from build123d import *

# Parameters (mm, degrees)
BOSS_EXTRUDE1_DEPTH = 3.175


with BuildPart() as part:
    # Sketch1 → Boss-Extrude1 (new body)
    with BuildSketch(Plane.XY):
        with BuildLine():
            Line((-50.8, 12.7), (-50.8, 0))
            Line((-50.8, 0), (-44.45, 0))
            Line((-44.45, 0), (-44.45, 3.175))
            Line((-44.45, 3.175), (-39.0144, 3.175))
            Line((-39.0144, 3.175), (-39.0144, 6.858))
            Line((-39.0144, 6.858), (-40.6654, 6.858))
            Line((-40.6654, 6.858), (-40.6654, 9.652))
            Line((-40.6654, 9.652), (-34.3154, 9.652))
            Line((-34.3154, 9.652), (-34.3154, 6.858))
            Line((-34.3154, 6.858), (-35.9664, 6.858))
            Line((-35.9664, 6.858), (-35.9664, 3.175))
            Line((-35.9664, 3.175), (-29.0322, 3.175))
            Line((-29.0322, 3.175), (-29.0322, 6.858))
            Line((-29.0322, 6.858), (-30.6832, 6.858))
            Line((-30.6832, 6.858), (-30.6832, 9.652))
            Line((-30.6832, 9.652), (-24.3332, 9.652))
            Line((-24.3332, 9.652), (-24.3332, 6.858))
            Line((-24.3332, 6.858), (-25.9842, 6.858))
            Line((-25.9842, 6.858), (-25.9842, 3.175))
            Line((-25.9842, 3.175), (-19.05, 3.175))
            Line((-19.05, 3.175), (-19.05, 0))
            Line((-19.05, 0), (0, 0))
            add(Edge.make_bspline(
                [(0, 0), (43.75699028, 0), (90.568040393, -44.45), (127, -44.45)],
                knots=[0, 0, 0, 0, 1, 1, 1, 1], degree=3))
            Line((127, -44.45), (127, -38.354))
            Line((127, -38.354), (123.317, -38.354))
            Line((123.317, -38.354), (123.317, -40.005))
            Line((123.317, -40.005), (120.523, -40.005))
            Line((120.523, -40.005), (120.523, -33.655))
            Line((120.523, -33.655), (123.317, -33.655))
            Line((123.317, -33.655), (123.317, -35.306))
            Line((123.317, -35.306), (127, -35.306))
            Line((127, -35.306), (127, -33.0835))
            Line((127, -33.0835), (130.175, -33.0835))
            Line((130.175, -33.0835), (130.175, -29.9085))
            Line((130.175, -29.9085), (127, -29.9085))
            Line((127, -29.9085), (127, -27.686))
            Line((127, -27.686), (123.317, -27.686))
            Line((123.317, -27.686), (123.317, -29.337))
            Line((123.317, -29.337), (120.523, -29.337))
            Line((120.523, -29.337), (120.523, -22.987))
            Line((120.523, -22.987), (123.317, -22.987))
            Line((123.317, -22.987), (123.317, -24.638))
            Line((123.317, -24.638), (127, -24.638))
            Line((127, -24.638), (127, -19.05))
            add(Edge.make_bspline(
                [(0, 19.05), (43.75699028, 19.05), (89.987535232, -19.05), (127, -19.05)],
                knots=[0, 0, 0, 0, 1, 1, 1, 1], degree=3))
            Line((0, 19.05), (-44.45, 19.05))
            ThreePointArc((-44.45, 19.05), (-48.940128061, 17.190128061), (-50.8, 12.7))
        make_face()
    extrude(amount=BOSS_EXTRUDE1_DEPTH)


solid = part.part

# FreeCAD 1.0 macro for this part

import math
import FreeCAD as App
import Part
import Sketcher
Q = App.Units.Quantity

doc = App.newDocument("Part")
body = doc.addObject("PartDesign::Body", "Body")

# Sketch on XY plane
sketch1 = body.newObject("Sketcher::SketchObject", "Sketch")
sketch1.AttachmentSupport = (doc.getObject("XY_Plane"), [""])
sketch1.MapMode = "FlatFace"
sketch1.addGeometry(Part.LineSegment(App.Vector(-50.8, 12.7, 0), App.Vector(-50.8, 0, 0)), False)
sketch1.addGeometry(Part.LineSegment(App.Vector(-50.8, 0, 0), App.Vector(-44.45, 0, 0)), False)
sketch1.addGeometry(Part.LineSegment(App.Vector(-44.45, 0, 0), App.Vector(-44.45, 3.175, 0)), False)
sketch1.addGeometry(Part.LineSegment(App.Vector(-44.45, 3.175, 0), App.Vector(-39.0144, 3.175, 0)), False)
sketch1.addGeometry(Part.LineSegment(App.Vector(-39.0144, 3.175, 0), App.Vector(-39.0144, 6.858, 0)), False)
sketch1.addGeometry(Part.LineSegment(App.Vector(-39.0144, 6.858, 0), App.Vector(-40.6654, 6.858, 0)), False)
sketch1.addGeometry(Part.LineSegment(App.Vector(-40.6654, 6.858, 0), App.Vector(-40.6654, 9.652, 0)), False)
sketch1.addGeometry(Part.LineSegment(App.Vector(-40.6654, 9.652, 0), App.Vector(-34.3154, 9.652, 0)), False)
sketch1.addGeometry(Part.LineSegment(App.Vector(-34.3154, 9.652, 0), App.Vector(-34.3154, 6.858, 0)), False)
sketch1.addGeometry(Part.LineSegment(App.Vector(-34.3154, 6.858, 0), App.Vector(-35.9664, 6.858, 0)), False)
sketch1.addGeometry(Part.LineSegment(App.Vector(-35.9664, 6.858, 0), App.Vector(-35.9664, 3.175, 0)), False)
sketch1.addGeometry(Part.LineSegment(App.Vector(-35.9664, 3.175, 0), App.Vector(-29.0322, 3.175, 0)), False)
sketch1.addGeometry(Part.LineSegment(App.Vector(-29.0322, 3.175, 0), App.Vector(-29.0322, 6.858, 0)), False)
sketch1.addGeometry(Part.LineSegment(App.Vector(-29.0322, 6.858, 0), App.Vector(-30.6832, 6.858, 0)), False)
sketch1.addGeometry(Part.LineSegment(App.Vector(-30.6832, 6.858, 0), App.Vector(-30.6832, 9.652, 0)), False)
sketch1.addGeometry(Part.LineSegment(App.Vector(-30.6832, 9.652, 0), App.Vector(-24.3332, 9.652, 0)), False)
sketch1.addGeometry(Part.LineSegment(App.Vector(-24.3332, 9.652, 0), App.Vector(-24.3332, 6.858, 0)), False)
sketch1.addGeometry(Part.LineSegment(App.Vector(-24.3332, 6.858, 0), App.Vector(-25.9842, 6.858, 0)), False)
sketch1.addGeometry(Part.LineSegment(App.Vector(-25.9842, 6.858, 0), App.Vector(-25.9842, 3.175, 0)), False)
sketch1.addGeometry(Part.LineSegment(App.Vector(-25.9842, 3.175, 0), App.Vector(-19.05, 3.175, 0)), False)
sketch1.addGeometry(Part.LineSegment(App.Vector(-19.05, 3.175, 0), App.Vector(-19.05, 0, 0)), False)
sketch1.addGeometry(Part.LineSegment(App.Vector(-19.05, 0, 0), App.Vector(0, 0, 0)), False)
sketch1.addGeometry(Part.BSplineCurve([App.Vector(0, 0, 0), App.Vector(43.75699, 0, 0), App.Vector(90.56804, -44.45, 0), App.Vector(127, -44.45, 0)], [4, 4], [0, 1], False, 3, [1, 1, 1, 1], False), False)
sketch1.addGeometry(Part.LineSegment(App.Vector(127, -44.45, 0), App.Vector(127, -38.354, 0)), False)
sketch1.addGeometry(Part.LineSegment(App.Vector(127, -38.354, 0), App.Vector(123.317, -38.354, 0)), False)
sketch1.addGeometry(Part.LineSegment(App.Vector(123.317, -38.354, 0), App.Vector(123.317, -40.005, 0)), False)
sketch1.addGeometry(Part.LineSegment(App.Vector(123.317, -40.005, 0), App.Vector(120.523, -40.005, 0)), False)
sketch1.addGeometry(Part.LineSegment(App.Vector(120.523, -40.005, 0), App.Vector(120.523, -33.655, 0)), False)
sketch1.addGeometry(Part.LineSegment(App.Vector(120.523, -33.655, 0), App.Vector(123.317, -33.655, 0)), False)
sketch1.addGeometry(Part.LineSegment(App.Vector(123.317, -33.655, 0), App.Vector(123.317, -35.306, 0)), False)
sketch1.addGeometry(Part.LineSegment(App.Vector(123.317, -35.306, 0), App.Vector(127, -35.306, 0)), False)
sketch1.addGeometry(Part.LineSegment(App.Vector(127, -35.306, 0), App.Vector(127, -33.0835, 0)), False)
sketch1.addGeometry(Part.LineSegment(App.Vector(127, -33.0835, 0), App.Vector(130.175, -33.0835, 0)), False)
sketch1.addGeometry(Part.LineSegment(App.Vector(130.175, -33.0835, 0), App.Vector(130.175, -29.9085, 0)), False)
sketch1.addGeometry(Part.LineSegment(App.Vector(130.175, -29.9085, 0), App.Vector(127, -29.9085, 0)), False)
sketch1.addGeometry(Part.LineSegment(App.Vector(127, -29.9085, 0), App.Vector(127, -27.686, 0)), False)
sketch1.addGeometry(Part.LineSegment(App.Vector(127, -27.686, 0), App.Vector(123.317, -27.686, 0)), False)
sketch1.addGeometry(Part.LineSegment(App.Vector(123.317, -27.686, 0), App.Vector(123.317, -29.337, 0)), False)
sketch1.addGeometry(Part.LineSegment(App.Vector(123.317, -29.337, 0), App.Vector(120.523, -29.337, 0)), False)
sketch1.addGeometry(Part.LineSegment(App.Vector(120.523, -29.337, 0), App.Vector(120.523, -22.987, 0)), False)
sketch1.addGeometry(Part.LineSegment(App.Vector(120.523, -22.987, 0), App.Vector(123.317, -22.987, 0)), False)
sketch1.addGeometry(Part.LineSegment(App.Vector(123.317, -22.987, 0), App.Vector(123.317, -24.638, 0)), False)
sketch1.addGeometry(Part.LineSegment(App.Vector(123.317, -24.638, 0), App.Vector(127, -24.638, 0)), False)
sketch1.addGeometry(Part.LineSegment(App.Vector(127, -24.638, 0), App.Vector(127, -19.05, 0)), False)
sketch1.addGeometry(Part.BSplineCurve([App.Vector(0, 19.05, 0), App.Vector(43.75699, 19.05, 0), App.Vector(89.987535, -19.05, 0), App.Vector(127, -19.05, 0)], [4, 4], [0, 1], False, 3, [1, 1, 1, 1], False), False)
sketch1.addGeometry(Part.LineSegment(App.Vector(0, 19.05, 0), App.Vector(-44.45, 19.05, 0)), False)
sketch1.addGeometry(Part.ArcOfCircle(Part.Circle(App.Vector(-44.45, 12.7, 0), App.Vector(0, 0, 1), 6.35), math.radians(90), math.radians(180)), False)
sketch1.addConstraint(Sketcher.Constraint("Block", 22))
sketch1.addConstraint(Sketcher.Constraint("Block", 44))
sketch1.addConstraint(Sketcher.Constraint("Coincident", 0, 2, 1, 1))
sketch1.addConstraint(Sketcher.Constraint("Coincident", 1, 2, 2, 1))
sketch1.addConstraint(Sketcher.Constraint("Coincident", 2, 2, 3, 1))
sketch1.addConstraint(Sketcher.Constraint("Coincident", 3, 2, 4, 1))
sketch1.addConstraint(Sketcher.Constraint("Coincident", 4, 2, 5, 1))
sketch1.addConstraint(Sketcher.Constraint("Coincident", 5, 2, 6, 1))
sketch1.addConstraint(Sketcher.Constraint("Coincident", 6, 2, 7, 1))
sketch1.addConstraint(Sketcher.Constraint("Coincident", 7, 2, 8, 1))
sketch1.addConstraint(Sketcher.Constraint("Coincident", 8, 2, 9, 1))
sketch1.addConstraint(Sketcher.Constraint("Coincident", 9, 2, 10, 1))
sketch1.addConstraint(Sketcher.Constraint("Coincident", 10, 2, 11, 1))
sketch1.addConstraint(Sketcher.Constraint("Coincident", 11, 2, 12, 1))
sketch1.addConstraint(Sketcher.Constraint("Coincident", 12, 2, 13, 1))
sketch1.addConstraint(Sketcher.Constraint("Coincident", 13, 2, 14, 1))
sketch1.addConstraint(Sketcher.Constraint("Coincident", 14, 2, 15, 1))
sketch1.addConstraint(Sketcher.Constraint("Coincident", 15, 2, 16, 1))
sketch1.addConstraint(Sketcher.Constraint("Coincident", 16, 2, 17, 1))
sketch1.addConstraint(Sketcher.Constraint("Coincident", 17, 2, 18, 1))
sketch1.addConstraint(Sketcher.Constraint("Coincident", 18, 2, 19, 1))
sketch1.addConstraint(Sketcher.Constraint("Coincident", 19, 2, 20, 1))
sketch1.addConstraint(Sketcher.Constraint("Coincident", 20, 2, 21, 1))
sketch1.addConstraint(Sketcher.Constraint("Coincident", 21, 2, 22, 1))
sketch1.addConstraint(Sketcher.Constraint("Coincident", 22, 2, 23, 1))
sketch1.addConstraint(Sketcher.Constraint("Coincident", 23, 2, 24, 1))
sketch1.addConstraint(Sketcher.Constraint("Coincident", 24, 2, 25, 1))
sketch1.addConstraint(Sketcher.Constraint("Coincident", 25, 2, 26, 1))
sketch1.addConstraint(Sketcher.Constraint("Coincident", 26, 2, 27, 1))
sketch1.addConstraint(Sketcher.Constraint("Coincident", 27, 2, 28, 1))
sketch1.addConstraint(Sketcher.Constraint("Coincident", 28, 2, 29, 1))
sketch1.addConstraint(Sketcher.Constraint("Coincident", 29, 2, 30, 1))
sketch1.addConstraint(Sketcher.Constraint("Coincident", 30, 2, 31, 1))
sketch1.addConstraint(Sketcher.Constraint("Coincident", 31, 2, 32, 1))
sketch1.addConstraint(Sketcher.Constraint("Coincident", 32, 2, 33, 1))
sketch1.addConstraint(Sketcher.Constraint("Coincident", 33, 2, 34, 1))
sketch1.addConstraint(Sketcher.Constraint("Coincident", 34, 2, 35, 1))
sketch1.addConstraint(Sketcher.Constraint("Coincident", 35, 2, 36, 1))
sketch1.addConstraint(Sketcher.Constraint("Coincident", 36, 2, 37, 1))
sketch1.addConstraint(Sketcher.Constraint("Coincident", 37, 2, 38, 1))
sketch1.addConstraint(Sketcher.Constraint("Coincident", 38, 2, 39, 1))
sketch1.addConstraint(Sketcher.Constraint("Coincident", 39, 2, 40, 1))
sketch1.addConstraint(Sketcher.Constraint("Coincident", 40, 2, 41, 1))
sketch1.addConstraint(Sketcher.Constraint("Coincident", 41, 2, 42, 1))
sketch1.addConstraint(Sketcher.Constraint("Coincident", 42, 2, 43, 1))
sketch1.addConstraint(Sketcher.Constraint("Coincident", 43, 2, 44, 2))
sketch1.addConstraint(Sketcher.Constraint("Coincident", 44, 1, 45, 1))
sketch1.addConstraint(Sketcher.Constraint("Coincident", 45, 2, 46, 1))
sketch1.addConstraint(Sketcher.Constraint("Coincident", 46, 2, 0, 1))
sketch1.addConstraint(Sketcher.Constraint("Vertical", 0))
sketch1.addConstraint(Sketcher.Constraint("Horizontal", 1))
sketch1.addConstraint(Sketcher.Constraint("Vertical", 2))
sketch1.addConstraint(Sketcher.Constraint("Horizontal", 3))
sketch1.addConstraint(Sketcher.Constraint("Vertical", 4))
sketch1.addConstraint(Sketcher.Constraint("Horizontal", 5))
sketch1.addConstraint(Sketcher.Constraint("Vertical", 6))
sketch1.addConstraint(Sketcher.Constraint("Horizontal", 7))
sketch1.addConstraint(Sketcher.Constraint("Vertical", 8))
sketch1.addConstraint(Sketcher.Constraint("Horizontal", 9))
sketch1.addConstraint(Sketcher.Constraint("Vertical", 10))
sketch1.addConstraint(Sketcher.Constraint("Horizontal", 11))
sketch1.addConstraint(Sketcher.Constraint("Vertical", 12))
sketch1.addConstraint(Sketcher.Constraint("Horizontal", 13))
sketch1.addConstraint(Sketcher.Constraint("Vertical", 14))
sketch1.addConstraint(Sketcher.Constraint("Horizontal", 15))
sketch1.addConstraint(Sketcher.Constraint("Vertical", 16))
sketch1.addConstraint(Sketcher.Constraint("Horizontal", 17))
sketch1.addConstraint(Sketcher.Constraint("Vertical", 18))
sketch1.addConstraint(Sketcher.Constraint("Horizontal", 19))
sketch1.addConstraint(Sketcher.Constraint("Vertical", 20))
sketch1.addConstraint(Sketcher.Constraint("Horizontal", 21))
sketch1.addConstraint(Sketcher.Constraint("Vertical", 23))
sketch1.addConstraint(Sketcher.Constraint("Horizontal", 24))
sketch1.addConstraint(Sketcher.Constraint("Vertical", 25))
sketch1.addConstraint(Sketcher.Constraint("Horizontal", 26))
sketch1.addConstraint(Sketcher.Constraint("Vertical", 27))
sketch1.addConstraint(Sketcher.Constraint("Horizontal", 28))
sketch1.addConstraint(Sketcher.Constraint("Vertical", 29))
sketch1.addConstraint(Sketcher.Constraint("Horizontal", 30))
sketch1.addConstraint(Sketcher.Constraint("Vertical", 31))
sketch1.addConstraint(Sketcher.Constraint("Horizontal", 32))
sketch1.addConstraint(Sketcher.Constraint("Vertical", 33))
sketch1.addConstraint(Sketcher.Constraint("Horizontal", 34))
sketch1.addConstraint(Sketcher.Constraint("Vertical", 35))
sketch1.addConstraint(Sketcher.Constraint("Horizontal", 36))
sketch1.addConstraint(Sketcher.Constraint("Vertical", 37))
sketch1.addConstraint(Sketcher.Constraint("Horizontal", 38))
sketch1.addConstraint(Sketcher.Constraint("Vertical", 39))
sketch1.addConstraint(Sketcher.Constraint("Horizontal", 40))
sketch1.addConstraint(Sketcher.Constraint("Vertical", 41))
sketch1.addConstraint(Sketcher.Constraint("Horizontal", 42))
sketch1.addConstraint(Sketcher.Constraint("Vertical", 43))
sketch1.addConstraint(Sketcher.Constraint("Horizontal", 45))
sketch1.addConstraint(Sketcher.Constraint("PointOnObject", 0, 2, -1))
sketch1.addConstraint(Sketcher.Constraint("Radius", 46, Q("0.25 in")))
sketch1.addConstraint(Sketcher.Constraint("DistanceY", 0, 2, 0, 1, Q("0.5 in")))
sketch1.addConstraint(Sketcher.Constraint("DistanceX", 0, 2, -1, 1, Q("2 in")))
sketch1.addConstraint(Sketcher.Constraint("DistanceX", -1, 1, 30, 2, Q("5 in")))
sketch1.addConstraint(Sketcher.Constraint("DistanceX", -1, 1, 34, 2, Q("5 in")))
sketch1.addConstraint(Sketcher.Constraint("DistanceX", 1, 1, 1, 2, Q("0.25 in")))
sketch1.addConstraint(Sketcher.Constraint("DistanceX", 7, 1, 7, 2, Q("0.25 in")))
sketch1.addConstraint(Sketcher.Constraint("DistanceX", 15, 1, 15, 2, Q("0.25 in")))
sketch1.addConstraint(Sketcher.Constraint("DistanceX", 21, 1, 21, 2, Q("0.75 in")))
sketch1.addConstraint(Sketcher.Constraint("DistanceX", 26, 2, 26, 1, Q("0.11 in")))
sketch1.addConstraint(Sketcher.Constraint("DistanceX", 28, 1, 28, 2, Q("0.11 in")))
sketch1.addConstraint(Sketcher.Constraint("DistanceX", 38, 2, 38, 1, Q("0.11 in")))
sketch1.addConstraint(Sketcher.Constraint("DistanceX", 40, 1, 40, 2, Q("0.11 in")))
sketch1.addConstraint(Sketcher.Constraint("DistanceX", 45, 2, 45, 1, Q("1.75 in")))
sketch1.addConstraint(Sketcher.Constraint("DistanceY", 6, 1, 6, 2, Q("0.11 in")))
sketch1.addConstraint(Sketcher.Constraint("DistanceY", 8, 2, 8, 1, Q("0.11 in")))
sketch1.addConstraint(Sketcher.Constraint("DistanceY", 14, 1, 14, 2, Q("0.11 in")))
sketch1.addConstraint(Sketcher.Constraint("DistanceY", 16, 2, 16, 1, Q("0.11 in")))
sketch1.addConstraint(Sketcher.Constraint("DistanceY", 23, 1, 23, 2, Q("0.24 in")))
sketch1.addConstraint(Sketcher.Constraint("DistanceY", 27, 1, 27, 2, Q("0.25 in")))
sketch1.addConstraint(Sketcher.Constraint("DistanceY", 39, 1, 39, 2, Q("0.25 in")))
sketch1.addConstraint(Sketcher.Constraint("DistanceY", 43, 1, 43, 2, Q("0.22 in")))
sketch1.addConstraint(Sketcher.Constraint("DistanceY", 25, 2, 19, 2, Q("1.7 in")))
sketch1.addConstraint(Sketcher.Constraint("DistanceX", 3, 1, 3, 2, Q("0.214 in")))
sketch1.addConstraint(Sketcher.Constraint("DistanceX", 5, 2, 5, 1, Q("0.065 in")))
sketch1.addConstraint(Sketcher.Constraint("DistanceX", 9, 2, 9, 1, Q("0.065 in")))
sketch1.addConstraint(Sketcher.Constraint("DistanceX", 11, 1, 11, 2, Q("0.273 in")))
sketch1.addConstraint(Sketcher.Constraint("DistanceX", 13, 2, 13, 1, Q("0.065 in")))
sketch1.addConstraint(Sketcher.Constraint("DistanceX", 17, 2, 17, 1, Q("0.065 in")))
sketch1.addConstraint(Sketcher.Constraint("DistanceX", 24, 2, 24, 1, Q("0.145 in")))
sketch1.addConstraint(Sketcher.Constraint("DistanceX", 32, 1, 32, 2, Q("0.125 in")))
sketch1.addConstraint(Sketcher.Constraint("DistanceX", 36, 2, 36, 1, Q("0.145 in")))
sketch1.addConstraint(Sketcher.Constraint("DistanceY", 2, 1, 2, 2, Q("0.125 in")))
sketch1.addConstraint(Sketcher.Constraint("DistanceY", 4, 1, 4, 2, Q("0.145 in")))
sketch1.addConstraint(Sketcher.Constraint("DistanceY", 10, 2, 10, 1, Q("0.145 in")))
sketch1.addConstraint(Sketcher.Constraint("DistanceY", 12, 1, 12, 2, Q("0.145 in")))
sketch1.addConstraint(Sketcher.Constraint("DistanceY", 18, 2, 18, 1, Q("0.145 in")))
sketch1.addConstraint(Sketcher.Constraint("DistanceY", 29, 2, 29, 1, Q("0.065 in")))
sketch1.addConstraint(Sketcher.Constraint("DistanceY", 33, 1, 33, 2, Q("0.125 in")))
sketch1.addConstraint(Sketcher.Constraint("DistanceY", 37, 2, 37, 1, Q("0.065 in")))
sketch1.addConstraint(Sketcher.Constraint("DistanceY", 41, 2, 41, 1, Q("0.065 in")))
sketch1.addConstraint(Sketcher.Constraint("DistanceY", 31, 1, 31, 2, Q("0.0875 in")))
pad1 = body.newObject("PartDesign::Pad", "Pad")
pad1.Profile = sketch1
pad1.Length = Q("0.125 in")

doc.recompute()
